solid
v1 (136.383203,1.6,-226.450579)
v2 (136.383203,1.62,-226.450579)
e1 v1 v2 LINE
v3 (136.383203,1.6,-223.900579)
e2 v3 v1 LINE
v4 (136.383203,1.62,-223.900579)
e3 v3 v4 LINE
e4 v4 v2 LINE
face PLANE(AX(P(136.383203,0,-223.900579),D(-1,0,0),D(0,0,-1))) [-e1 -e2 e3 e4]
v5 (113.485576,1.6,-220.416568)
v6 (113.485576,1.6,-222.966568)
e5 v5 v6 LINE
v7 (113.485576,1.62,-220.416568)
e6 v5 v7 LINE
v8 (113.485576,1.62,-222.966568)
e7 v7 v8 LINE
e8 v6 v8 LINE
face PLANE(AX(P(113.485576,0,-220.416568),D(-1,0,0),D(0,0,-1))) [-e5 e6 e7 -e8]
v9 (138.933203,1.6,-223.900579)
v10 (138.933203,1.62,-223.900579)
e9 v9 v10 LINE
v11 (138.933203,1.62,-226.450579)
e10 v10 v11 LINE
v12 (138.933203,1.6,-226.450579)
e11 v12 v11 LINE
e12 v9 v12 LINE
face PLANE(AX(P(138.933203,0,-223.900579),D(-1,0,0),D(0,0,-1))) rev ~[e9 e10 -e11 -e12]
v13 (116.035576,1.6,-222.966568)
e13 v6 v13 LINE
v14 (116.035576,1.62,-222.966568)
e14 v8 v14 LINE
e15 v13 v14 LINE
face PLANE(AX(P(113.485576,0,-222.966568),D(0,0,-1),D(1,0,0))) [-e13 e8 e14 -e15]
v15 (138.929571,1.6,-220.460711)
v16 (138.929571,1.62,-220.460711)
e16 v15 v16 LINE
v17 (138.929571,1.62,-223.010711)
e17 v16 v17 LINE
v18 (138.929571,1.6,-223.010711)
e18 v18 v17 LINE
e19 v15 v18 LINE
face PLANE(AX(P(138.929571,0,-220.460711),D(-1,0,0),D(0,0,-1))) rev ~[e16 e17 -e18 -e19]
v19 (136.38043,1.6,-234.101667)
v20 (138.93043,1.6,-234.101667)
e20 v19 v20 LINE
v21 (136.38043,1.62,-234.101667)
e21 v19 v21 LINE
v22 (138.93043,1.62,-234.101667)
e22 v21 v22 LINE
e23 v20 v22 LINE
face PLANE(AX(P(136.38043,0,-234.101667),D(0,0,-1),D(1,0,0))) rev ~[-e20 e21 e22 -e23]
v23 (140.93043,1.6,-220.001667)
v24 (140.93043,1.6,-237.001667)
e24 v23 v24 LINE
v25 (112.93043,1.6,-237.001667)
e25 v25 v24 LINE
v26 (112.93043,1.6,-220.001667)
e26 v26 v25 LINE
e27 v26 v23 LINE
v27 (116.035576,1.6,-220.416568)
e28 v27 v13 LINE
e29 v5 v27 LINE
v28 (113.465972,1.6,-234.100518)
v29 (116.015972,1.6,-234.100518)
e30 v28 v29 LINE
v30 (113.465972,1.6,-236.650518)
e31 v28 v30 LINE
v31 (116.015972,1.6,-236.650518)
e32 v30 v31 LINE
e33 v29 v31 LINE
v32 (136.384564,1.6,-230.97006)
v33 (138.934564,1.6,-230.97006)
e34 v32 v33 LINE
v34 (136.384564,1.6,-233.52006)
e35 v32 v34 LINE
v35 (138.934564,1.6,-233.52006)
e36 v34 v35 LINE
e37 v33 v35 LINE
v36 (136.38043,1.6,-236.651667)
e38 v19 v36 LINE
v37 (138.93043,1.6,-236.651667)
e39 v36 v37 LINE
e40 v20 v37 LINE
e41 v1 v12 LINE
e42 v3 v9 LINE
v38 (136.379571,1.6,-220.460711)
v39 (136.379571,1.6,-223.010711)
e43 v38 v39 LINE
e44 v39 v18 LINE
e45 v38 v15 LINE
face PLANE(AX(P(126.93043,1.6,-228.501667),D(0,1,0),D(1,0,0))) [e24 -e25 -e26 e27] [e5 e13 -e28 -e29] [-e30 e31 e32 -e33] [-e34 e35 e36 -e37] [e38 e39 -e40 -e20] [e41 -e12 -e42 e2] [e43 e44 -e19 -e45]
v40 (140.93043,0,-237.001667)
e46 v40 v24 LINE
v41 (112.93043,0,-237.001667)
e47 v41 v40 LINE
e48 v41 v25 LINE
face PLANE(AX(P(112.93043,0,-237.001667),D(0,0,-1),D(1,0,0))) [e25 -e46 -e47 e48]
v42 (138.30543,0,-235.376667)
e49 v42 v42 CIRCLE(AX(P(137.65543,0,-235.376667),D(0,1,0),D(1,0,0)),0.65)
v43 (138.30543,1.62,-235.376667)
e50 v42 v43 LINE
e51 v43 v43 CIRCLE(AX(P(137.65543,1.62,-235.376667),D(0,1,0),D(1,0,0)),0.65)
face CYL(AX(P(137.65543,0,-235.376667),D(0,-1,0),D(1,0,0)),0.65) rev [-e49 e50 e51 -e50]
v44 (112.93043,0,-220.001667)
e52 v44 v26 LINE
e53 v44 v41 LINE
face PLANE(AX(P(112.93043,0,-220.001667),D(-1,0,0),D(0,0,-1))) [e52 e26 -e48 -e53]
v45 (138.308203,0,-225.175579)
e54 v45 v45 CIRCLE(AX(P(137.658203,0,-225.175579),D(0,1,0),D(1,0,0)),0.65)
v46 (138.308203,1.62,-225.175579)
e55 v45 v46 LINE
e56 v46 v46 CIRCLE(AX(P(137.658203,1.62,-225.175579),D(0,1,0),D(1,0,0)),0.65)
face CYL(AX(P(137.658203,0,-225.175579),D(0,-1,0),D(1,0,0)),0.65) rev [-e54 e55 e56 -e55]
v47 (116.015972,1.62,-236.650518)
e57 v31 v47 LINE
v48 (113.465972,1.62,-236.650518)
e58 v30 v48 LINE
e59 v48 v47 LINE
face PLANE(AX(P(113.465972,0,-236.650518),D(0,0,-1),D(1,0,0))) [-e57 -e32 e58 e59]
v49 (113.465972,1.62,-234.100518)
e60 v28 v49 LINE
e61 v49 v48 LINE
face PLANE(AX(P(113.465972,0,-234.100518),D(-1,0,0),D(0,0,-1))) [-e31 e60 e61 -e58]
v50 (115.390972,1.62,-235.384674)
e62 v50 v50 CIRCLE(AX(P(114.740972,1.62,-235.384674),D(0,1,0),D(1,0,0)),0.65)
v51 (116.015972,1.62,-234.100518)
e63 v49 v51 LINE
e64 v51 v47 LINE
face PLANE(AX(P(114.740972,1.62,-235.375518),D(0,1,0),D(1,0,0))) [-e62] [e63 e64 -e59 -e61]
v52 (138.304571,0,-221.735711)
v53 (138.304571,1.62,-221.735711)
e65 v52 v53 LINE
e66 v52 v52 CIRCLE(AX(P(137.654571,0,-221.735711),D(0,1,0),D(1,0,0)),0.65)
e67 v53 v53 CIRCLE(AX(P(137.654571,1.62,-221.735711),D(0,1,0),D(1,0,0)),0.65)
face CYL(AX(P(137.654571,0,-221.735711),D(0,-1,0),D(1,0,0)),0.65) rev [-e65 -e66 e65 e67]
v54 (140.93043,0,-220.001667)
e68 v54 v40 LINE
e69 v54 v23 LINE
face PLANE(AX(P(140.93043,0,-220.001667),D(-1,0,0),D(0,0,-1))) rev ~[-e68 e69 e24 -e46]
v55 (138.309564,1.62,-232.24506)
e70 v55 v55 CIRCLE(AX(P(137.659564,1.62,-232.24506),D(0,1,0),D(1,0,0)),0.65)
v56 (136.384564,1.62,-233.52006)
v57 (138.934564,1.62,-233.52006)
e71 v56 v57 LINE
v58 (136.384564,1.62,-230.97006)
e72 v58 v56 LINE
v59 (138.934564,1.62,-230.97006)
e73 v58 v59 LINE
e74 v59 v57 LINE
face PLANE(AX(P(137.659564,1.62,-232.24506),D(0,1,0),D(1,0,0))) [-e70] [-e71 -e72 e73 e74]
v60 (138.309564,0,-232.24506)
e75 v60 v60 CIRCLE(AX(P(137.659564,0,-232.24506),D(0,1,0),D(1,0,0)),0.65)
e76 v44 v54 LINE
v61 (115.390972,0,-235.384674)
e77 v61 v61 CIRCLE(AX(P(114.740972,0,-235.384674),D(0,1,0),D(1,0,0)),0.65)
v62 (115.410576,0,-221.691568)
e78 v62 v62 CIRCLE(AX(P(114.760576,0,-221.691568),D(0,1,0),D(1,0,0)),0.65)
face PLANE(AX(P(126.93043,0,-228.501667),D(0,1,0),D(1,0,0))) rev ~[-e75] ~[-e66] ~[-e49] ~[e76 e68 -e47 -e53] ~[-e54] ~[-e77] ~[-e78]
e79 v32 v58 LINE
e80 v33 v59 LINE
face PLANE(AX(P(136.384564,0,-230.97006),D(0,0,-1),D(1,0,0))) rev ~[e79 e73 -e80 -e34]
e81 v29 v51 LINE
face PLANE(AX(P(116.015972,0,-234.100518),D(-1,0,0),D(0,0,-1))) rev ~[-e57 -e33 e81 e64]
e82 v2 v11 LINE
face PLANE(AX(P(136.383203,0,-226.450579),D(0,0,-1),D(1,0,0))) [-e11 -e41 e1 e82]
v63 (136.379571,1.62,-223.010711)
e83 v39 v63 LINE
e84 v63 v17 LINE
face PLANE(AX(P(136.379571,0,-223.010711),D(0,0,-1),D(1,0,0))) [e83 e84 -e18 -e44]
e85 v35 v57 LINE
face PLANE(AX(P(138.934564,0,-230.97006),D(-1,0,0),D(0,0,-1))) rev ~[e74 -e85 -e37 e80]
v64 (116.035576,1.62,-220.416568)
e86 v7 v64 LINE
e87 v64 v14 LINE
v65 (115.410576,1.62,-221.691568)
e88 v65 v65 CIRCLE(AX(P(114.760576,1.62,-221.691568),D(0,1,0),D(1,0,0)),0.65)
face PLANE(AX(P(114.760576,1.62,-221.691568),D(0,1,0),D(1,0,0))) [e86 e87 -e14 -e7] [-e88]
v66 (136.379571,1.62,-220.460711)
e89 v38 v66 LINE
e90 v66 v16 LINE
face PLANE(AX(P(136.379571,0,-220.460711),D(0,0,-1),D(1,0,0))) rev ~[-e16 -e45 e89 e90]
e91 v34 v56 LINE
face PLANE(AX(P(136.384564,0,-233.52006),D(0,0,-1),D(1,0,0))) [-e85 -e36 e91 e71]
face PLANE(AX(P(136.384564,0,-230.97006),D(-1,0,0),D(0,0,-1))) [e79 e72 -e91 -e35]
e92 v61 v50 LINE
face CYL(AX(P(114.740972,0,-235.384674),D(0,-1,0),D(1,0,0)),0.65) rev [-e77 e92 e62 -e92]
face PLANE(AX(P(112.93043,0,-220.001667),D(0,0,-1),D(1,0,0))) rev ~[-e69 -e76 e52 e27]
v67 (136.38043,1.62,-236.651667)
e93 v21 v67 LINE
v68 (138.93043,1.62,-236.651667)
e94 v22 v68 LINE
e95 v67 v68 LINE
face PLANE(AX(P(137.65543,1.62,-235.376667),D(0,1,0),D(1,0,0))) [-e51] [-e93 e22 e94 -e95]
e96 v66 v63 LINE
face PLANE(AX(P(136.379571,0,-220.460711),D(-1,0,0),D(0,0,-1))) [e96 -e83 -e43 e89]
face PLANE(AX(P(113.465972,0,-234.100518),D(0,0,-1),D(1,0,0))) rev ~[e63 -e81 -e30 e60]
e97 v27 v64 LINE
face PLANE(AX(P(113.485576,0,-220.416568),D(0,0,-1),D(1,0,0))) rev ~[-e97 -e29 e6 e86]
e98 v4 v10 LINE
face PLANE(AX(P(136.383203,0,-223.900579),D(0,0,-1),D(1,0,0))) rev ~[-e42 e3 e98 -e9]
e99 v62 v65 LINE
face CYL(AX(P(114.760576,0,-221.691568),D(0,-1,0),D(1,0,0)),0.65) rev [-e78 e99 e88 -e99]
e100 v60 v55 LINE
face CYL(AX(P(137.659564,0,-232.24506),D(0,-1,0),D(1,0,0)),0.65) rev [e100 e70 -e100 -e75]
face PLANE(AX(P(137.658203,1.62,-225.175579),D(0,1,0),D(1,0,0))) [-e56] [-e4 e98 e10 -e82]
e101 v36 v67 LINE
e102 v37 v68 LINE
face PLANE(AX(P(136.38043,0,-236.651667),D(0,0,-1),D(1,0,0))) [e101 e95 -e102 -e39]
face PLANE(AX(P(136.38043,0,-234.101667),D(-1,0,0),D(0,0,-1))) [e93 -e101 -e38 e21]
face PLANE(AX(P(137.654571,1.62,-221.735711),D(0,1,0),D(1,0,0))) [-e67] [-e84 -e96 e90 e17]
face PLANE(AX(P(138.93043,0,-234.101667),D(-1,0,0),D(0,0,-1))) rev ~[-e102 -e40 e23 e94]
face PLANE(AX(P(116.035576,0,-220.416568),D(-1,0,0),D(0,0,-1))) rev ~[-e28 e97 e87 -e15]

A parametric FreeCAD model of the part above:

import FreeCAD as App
import Part
import Sketcher
Q = App.Units.Quantity


def add_polygon(sketch, points):
    """Adds a closed chain of lines whose ends are joined by coincident constraints."""
    first, n = sketch.GeometryCount, len(points)
    for a, b in zip(points, points[1:] + points[:1]):
        sketch.addGeometry(Part.LineSegment(App.Vector(*a, 0), App.Vector(*b, 0)), False)
    for i in range(n):
        sketch.addConstraint(Sketcher.Constraint("Coincident", first + i, 2, first + (i + 1) % n, 1))

doc = App.newDocument("Part")
body = doc.addObject("PartDesign::Body", "Body")

sketch1 = body.newObject("Sketcher::SketchObject", "Sketch")
sketch1.AttachmentSupport = (doc.getObject("XZ_Plane"), [""])
sketch1.MapMode = "FlatFace"
add_polygon(sketch1, [(112.93043, -237.001667), (112.93043, -220.001667), (140.93043, -220.001667), (140.93043, -237.001667)])
add_polygon(sketch1, [(116.035576, -220.416568), (113.485576, -220.416568), (113.485576, -222.966568), (116.035576, -222.966568)])
add_polygon(sketch1, [(138.929571, -220.460711), (136.379571, -220.460711), (136.379571, -223.010711), (138.929571, -223.010711)])
add_polygon(sketch1, [(138.933203, -223.900579), (136.383203, -223.900579), (136.383203, -226.450579), (138.933203, -226.450579)])
add_polygon(sketch1, [(116.015972, -234.100518), (113.465972, -234.100518), (113.465972, -236.650518), (116.015972, -236.650518)])
add_polygon(sketch1, [(138.934564, -230.97006), (136.384564, -230.97006), (136.384564, -233.52006), (138.934564, -233.52006)])
add_polygon(sketch1, [(138.93043, -234.101667), (136.38043, -234.101667), (136.38043, -236.651667), (138.93043, -236.651667)])
sketch1.addConstraint([
    Sketcher.Constraint("Vertical", 0),
    Sketcher.Constraint("Horizontal", 1),
    Sketcher.Constraint("Vertical", 2),
    Sketcher.Constraint("Horizontal", 3),
    Sketcher.Constraint("Horizontal", 4),
    Sketcher.Constraint("Vertical", 5),
    Sketcher.Constraint("Horizontal", 6),
    Sketcher.Constraint("Vertical", 7),
    Sketcher.Constraint("Horizontal", 8),
    Sketcher.Constraint("Vertical", 9),
    Sketcher.Constraint("Horizontal", 10),
    Sketcher.Constraint("Vertical", 11),
    Sketcher.Constraint("Horizontal", 12),
    Sketcher.Constraint("Vertical", 13),
    Sketcher.Constraint("Horizontal", 14),
    Sketcher.Constraint("Vertical", 15),
    Sketcher.Constraint("Horizontal", 16),
    Sketcher.Constraint("Vertical", 17),
    Sketcher.Constraint("Horizontal", 18),
    Sketcher.Constraint("Vertical", 19),
    Sketcher.Constraint("Horizontal", 20),
    Sketcher.Constraint("Vertical", 21),
    Sketcher.Constraint("Horizontal", 22),
    Sketcher.Constraint("Vertical", 23),
    Sketcher.Constraint("Horizontal", 24),
    Sketcher.Constraint("Vertical", 25),
    Sketcher.Constraint("Horizontal", 26),
    Sketcher.Constraint("Vertical", 27),
    Sketcher.Constraint("Equal", 6, 8),
    Sketcher.Constraint("Equal", 10, 12),
    Sketcher.Constraint("Equal", 14, 16),
    Sketcher.Constraint("Equal", 18, 20),
    Sketcher.Constraint("Equal", 22, 24),
    Sketcher.Constraint("Equal", 26, 5),
    Sketcher.Constraint("Equal", 7, 9),
    Sketcher.Constraint("Equal", 11, 13),
    Sketcher.Constraint("Equal", 15, 17),
    Sketcher.Constraint("Equal", 19, 21),
    Sketcher.Constraint("Equal", 23, 25),
    Sketcher.Constraint("DistanceX", 1, 1, 1, 2, Q("28 mm")),
    Sketcher.Constraint("DistanceY", 0, 1, 0, 2, Q("17 mm")),
    Sketcher.Constraint("DistanceX", 26, 2, 2, 2, Q("2 mm")),
    Sketcher.Constraint("DistanceX", 4, 2, 4, 1, Q("2.55 mm")),
    Sketcher.Constraint("DistanceY", 2, 2, 24, 2, Q("2.9 mm")),
    Sketcher.Constraint("DistanceY", 4, 2, 0, 2, Q("0.414901 mm")),
    Sketcher.Constraint("DistanceX", -1, 1, 0, 2, Q("112.93043 mm")),
    Sketcher.Constraint("DistanceX", -1, 1, 8, 2, Q("136.379571 mm")),
    Sketcher.Constraint("DistanceY", 8, 2, -1, 1, Q("220.460711 mm")),
    Sketcher.Constraint("DistanceY", 12, 2, -1, 1, Q("223.900579 mm")),
    Sketcher.Constraint("DistanceX", -1, 1, 16, 2, Q("113.465972 mm")),
    Sketcher.Constraint("DistanceY", 16, 2, -1, 1, Q("234.100518 mm")),
    Sketcher.Constraint("DistanceY", 20, 2, -1, 1, Q("230.97006 mm")),
    Sketcher.Constraint("DistanceX", 9, 2, 12, 2, Q("0.003632 mm")),
    Sketcher.Constraint("DistanceY", 12, 2, 1, 2, Q("3.898912 mm")),
    Sketcher.Constraint("DistanceX", 13, 2, 20, 2, Q("0.001361 mm")),
    Sketcher.Constraint("DistanceX", -1, 1, 4, 2, Q("113.485576 mm")),
])
pad1 = body.newObject("PartDesign::Pad", "Pad")
pad1.Profile = sketch1
pad1.Length = 1.6
pad1.Reversed = True

sketch2 = body.newObject("Sketcher::SketchObject", "Sketch001")
sketch2.AttachmentSupport = (doc.getObject("XZ_Plane"), [""])
sketch2.MapMode = "FlatFace"
add_polygon(sketch2, [(136.383203, -226.450579), (136.383203, -223.900579), (138.933203, -223.900579), (138.933203, -226.450579)])
sketch2.addGeometry(Part.Circle(App.Vector(137.658203, -225.175579, 0), App.Vector(0, 0, 1), 0.65), False)
add_polygon(sketch2, [(136.384564, -233.52006), (136.384564, -230.97006), (138.934564, -230.97006), (138.934564, -233.52006)])
sketch2.addGeometry(Part.Circle(App.Vector(137.659564, -232.24506, 0), App.Vector(0, 0, 1), 0.65), False)
add_polygon(sketch2, [(136.38043, -236.651667), (136.38043, -234.101667), (138.93043, -234.101667), (138.93043, -236.651667)])
sketch2.addGeometry(Part.Circle(App.Vector(137.65543, -235.376667, 0), App.Vector(0, 0, 1), 0.65), False)
add_polygon(sketch2, [(113.465972, -236.650518), (113.465972, -234.100518), (116.015972, -234.100518), (116.015972, -236.650518)])
sketch2.addGeometry(Part.Circle(App.Vector(114.740972, -235.384674, 0), App.Vector(0, 0, 1), 0.65), False)
add_polygon(sketch2, [(113.485576, -222.966568), (113.485576, -220.416568), (116.035576, -220.416568), (116.035576, -222.966568)])
sketch2.addGeometry(Part.Circle(App.Vector(114.760576, -221.691568, 0), App.Vector(0, 0, 1), 0.65), False)
add_polygon(sketch2, [(136.379571, -223.010711), (136.379571, -220.460711), (138.929571, -220.460711), (138.929571, -223.010711)])
sketch2.addGeometry(Part.Circle(App.Vector(137.654571, -221.735711, 0), App.Vector(0, 0, 1), 0.65), False)
sketch2.addConstraint([
    Sketcher.Constraint("Vertical", 0),
    Sketcher.Constraint("Horizontal", 1),
    Sketcher.Constraint("Vertical", 2),
    Sketcher.Constraint("Horizontal", 3),
    Sketcher.Constraint("Vertical", 5),
    Sketcher.Constraint("Horizontal", 6),
    Sketcher.Constraint("Vertical", 7),
    Sketcher.Constraint("Horizontal", 8),
    Sketcher.Constraint("Vertical", 10),
    Sketcher.Constraint("Horizontal", 11),
    Sketcher.Constraint("Vertical", 12),
    Sketcher.Constraint("Horizontal", 13),
    Sketcher.Constraint("Vertical", 15),
    Sketcher.Constraint("Horizontal", 16),
    Sketcher.Constraint("Vertical", 17),
    Sketcher.Constraint("Horizontal", 18),
    Sketcher.Constraint("Vertical", 20),
    Sketcher.Constraint("Horizontal", 21),
    Sketcher.Constraint("Vertical", 22),
    Sketcher.Constraint("Horizontal", 23),
    Sketcher.Constraint("Vertical", 25),
    Sketcher.Constraint("Horizontal", 26),
    Sketcher.Constraint("Vertical", 27),
    Sketcher.Constraint("Horizontal", 28),
    Sketcher.Constraint("Equal", 4, 9),
    Sketcher.Constraint("Equal", 9, 14),
    Sketcher.Constraint("Equal", 14, 19),
    Sketcher.Constraint("Equal", 19, 24),
    Sketcher.Constraint("Equal", 24, 29),
    Sketcher.Constraint("Equal", 3, 6),
    Sketcher.Constraint("Equal", 8, 11),
    Sketcher.Constraint("Equal", 13, 16),
    Sketcher.Constraint("Equal", 18, 21),
    Sketcher.Constraint("Equal", 23, 26),
    Sketcher.Constraint("Equal", 28, 0),
    Sketcher.Constraint("Equal", 2, 5),
    Sketcher.Constraint("Equal", 7, 10),
    Sketcher.Constraint("Equal", 12, 15),
    Sketcher.Constraint("Equal", 17, 20),
    Sketcher.Constraint("Equal", 22, 25),
    Sketcher.Constraint("Diameter", 4, Q("1.3 mm")),
    Sketcher.Constraint("DistanceX", 1, 1, 1, 2, Q("2.55 mm")),
    Sketcher.Constraint("DistanceX", 0, 2, 4, 3, Q("1.275 mm")),
    Sketcher.Constraint("DistanceY", 4, 3, 0, 2, Q("1.275 mm")),
    Sketcher.Constraint("DistanceX", 5, 2, 9, 3, Q("1.275 mm")),
    Sketcher.Constraint("DistanceY", 9, 3, 5, 2, Q("1.275 mm")),
    Sketcher.Constraint("DistanceX", 10, 2, 14, 3, Q("1.275 mm")),
    Sketcher.Constraint("DistanceY", 14, 3, 10, 2, Q("1.275 mm")),
    Sketcher.Constraint("DistanceX", 15, 2, 19, 3, Q("1.275 mm")),
    Sketcher.Constraint("DistanceX", 20, 2, 24, 3, Q("1.275 mm")),
    Sketcher.Constraint("DistanceY", 24, 3, 20, 2, Q("1.275 mm")),
    Sketcher.Constraint("DistanceX", 25, 2, 29, 3, Q("1.275 mm")),
    Sketcher.Constraint("DistanceY", 29, 3, 25, 2, Q("1.275 mm")),
    Sketcher.Constraint("DistanceY", 14, 3, 24, 3, Q("13.685099 mm")),
    Sketcher.Constraint("DistanceX", 19, 3, 29, 3, Q("22.913599 mm")),
    Sketcher.Constraint("DistanceY", 4, 3, -1, 1, Q("225.175579 mm")),
    Sketcher.Constraint("DistanceY", 9, 3, -1, 1, Q("232.24506 mm")),
    Sketcher.Constraint("DistanceX", -1, 1, 14, 3, Q("137.65543 mm")),
    Sketcher.Constraint("DistanceX", -1, 1, 19, 3, Q("114.740972 mm")),
    Sketcher.Constraint("DistanceY", 29, 3, -1, 1, Q("221.735711 mm")),
    Sketcher.Constraint("DistanceY", 15, 2, -1, 1, Q("234.100518 mm")),
    Sketcher.Constraint("DistanceX", 4, 3, 9, 3, Q("0.001361 mm")),
    Sketcher.Constraint("DistanceY", 14, 3, 4, 3, Q("10.201088 mm")),
    Sketcher.Constraint("DistanceX", 19, 3, 4, 3, Q("22.917231 mm")),
    Sketcher.Constraint("DistanceX", 24, 3, 9, 3, Q("22.898988 mm")),
    Sketcher.Constraint("DistanceY", 19, 3, -1, 1, Q("235.384674 mm")),
])
pad2 = body.newObject("PartDesign::Pad", "Pad001")
pad2.Profile = sketch2
pad2.Length = 1.62
pad2.Reversed = True

doc.recompute()
